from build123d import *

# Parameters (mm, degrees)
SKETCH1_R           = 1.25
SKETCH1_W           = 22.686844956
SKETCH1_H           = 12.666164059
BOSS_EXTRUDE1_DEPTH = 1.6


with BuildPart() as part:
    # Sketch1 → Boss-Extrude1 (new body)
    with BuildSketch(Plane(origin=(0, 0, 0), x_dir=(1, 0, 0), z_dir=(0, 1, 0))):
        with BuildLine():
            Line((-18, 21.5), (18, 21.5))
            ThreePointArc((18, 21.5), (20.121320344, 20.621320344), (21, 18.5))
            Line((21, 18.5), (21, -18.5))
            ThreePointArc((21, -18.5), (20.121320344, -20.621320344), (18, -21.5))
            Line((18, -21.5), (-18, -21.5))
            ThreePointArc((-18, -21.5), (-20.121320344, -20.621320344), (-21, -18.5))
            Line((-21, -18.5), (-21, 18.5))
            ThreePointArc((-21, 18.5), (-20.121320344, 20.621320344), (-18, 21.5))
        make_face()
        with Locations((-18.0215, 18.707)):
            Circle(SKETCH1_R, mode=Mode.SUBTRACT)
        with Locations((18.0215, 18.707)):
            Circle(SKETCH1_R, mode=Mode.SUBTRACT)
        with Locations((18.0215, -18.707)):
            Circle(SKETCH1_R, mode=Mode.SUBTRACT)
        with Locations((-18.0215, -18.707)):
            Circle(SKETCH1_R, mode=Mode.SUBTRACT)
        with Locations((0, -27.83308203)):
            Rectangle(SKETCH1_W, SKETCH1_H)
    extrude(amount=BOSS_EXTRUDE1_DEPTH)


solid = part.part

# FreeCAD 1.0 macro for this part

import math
import FreeCAD as App
import Part
import Sketcher

doc = App.newDocument("Part")
body = doc.addObject("PartDesign::Body", "Body")

# Sketch on XZ plane
sketch1 = doc.addObject("Sketcher::SketchObject", "Sketch")
body.addObject(sketch1)
sketch1.AttachmentSupport = (doc.XZ_Plane, [""])
sketch1.MapMode = "FlatFace"
sketch1.addGeometry([
    Part.LineSegment(App.Vector(18, -21.5, 0), App.Vector(-18, -21.5, 0)),  # 0
    Part.ArcOfCircle(Part.Circle(App.Vector(-18, -18.5, 0), App.Vector(0, 0, 1), 3), math.radians(180), math.radians(270)),  # 1
    Part.LineSegment(App.Vector(-21, -18.5, 0), App.Vector(-21, 18.5, 0)),  # 2
    Part.ArcOfCircle(Part.Circle(App.Vector(-18, 18.5, 0), App.Vector(0, 0, 1), 3), math.radians(90), math.radians(180)),  # 3
    Part.LineSegment(App.Vector(-18, 21.5, 0), App.Vector(-11.3, 21.5, 0)),  # 4
    Part.LineSegment(App.Vector(-11.3, 21.5, 0), App.Vector(-11.3, 34.2, 0)),  # 5
    Part.LineSegment(App.Vector(-11.3, 34.2, 0), App.Vector(11.3, 34.2, 0)),  # 6
    Part.LineSegment(App.Vector(11.3, 34.2, 0), App.Vector(11.3, 21.5, 0)),  # 7
    Part.LineSegment(App.Vector(11.3, 21.5, 0), App.Vector(18, 21.5, 0)),  # 8
    Part.ArcOfCircle(Part.Circle(App.Vector(18, 18.5, 0), App.Vector(0, 0, 1), 3), math.radians(0), math.radians(90)),  # 9
    Part.LineSegment(App.Vector(21, 18.5, 0), App.Vector(21, -18.5, 0)),  # 10
    Part.ArcOfCircle(Part.Circle(App.Vector(18, -18.5, 0), App.Vector(0, 0, 1), 3), math.radians(-90), math.radians(0)),  # 11
    Part.Circle(App.Vector(18, 18.7, 0), App.Vector(0, 0, 1), 1.2),  # 12
    Part.Circle(App.Vector(-18, 18.7, 0), App.Vector(0, 0, 1), 1.2),  # 13
    Part.Circle(App.Vector(18, -18.7, 0), App.Vector(0, 0, 1), 1.2),  # 14
    Part.Circle(App.Vector(-18, -18.7, 0), App.Vector(0, 0, 1), 1.2),  # 15
], False)
sketch1.addConstraint([
    Sketcher.Constraint("Tangent", 0, 2, 1, 2),
    Sketcher.Constraint("Tangent", 1, 1, 2, 1),
    Sketcher.Constraint("Tangent", 2, 2, 3, 2),
    Sketcher.Constraint("Tangent", 3, 1, 4, 1),
    Sketcher.Constraint("Coincident", 4, 2, 5, 1),
    Sketcher.Constraint("Coincident", 5, 2, 6, 1),
    Sketcher.Constraint("Coincident", 6, 2, 7, 1),
    Sketcher.Constraint("Coincident", 7, 2, 8, 1),
    Sketcher.Constraint("Tangent", 8, 2, 9, 2),
    Sketcher.Constraint("Tangent", 9, 1, 10, 1),
    Sketcher.Constraint("Tangent", 10, 2, 11, 2),
    Sketcher.Constraint("Tangent", 11, 1, 0, 1),
    Sketcher.Constraint("Horizontal", 0),
    Sketcher.Constraint("Vertical", 2),
    Sketcher.Constraint("Horizontal", 4),
    Sketcher.Constraint("Vertical", 5),
    Sketcher.Constraint("Horizontal", 6),
    Sketcher.Constraint("Vertical", 7),
    Sketcher.Constraint("Horizontal", 8),
    Sketcher.Constraint("Vertical", 10),
    Sketcher.Constraint("Equal", 1, 3),
    Sketcher.Constraint("Equal", 3, 9),
    Sketcher.Constraint("Equal", 9, 11),
    Sketcher.Constraint("Equal", 12, 13),
    Sketcher.Constraint("Equal", 13, 14),
    Sketcher.Constraint("Equal", 14, 15),
    Sketcher.Constraint("Symmetric", 1, 3, 9, 3, -1, 1),
    Sketcher.Constraint("Symmetric", 13, 3, 14, 3, -1, 1),
    Sketcher.Constraint("Symmetric", 12, 3, 15, 3, -1, 1),
    Sketcher.Constraint("Symmetric", 12, 3, 13, 3, -2),
    Sketcher.Constraint("Symmetric", 4, 2, 7, 2, -2),
    Sketcher.Constraint("Radius", 1, 3.0),
    Sketcher.Constraint("Diameter", 12, 2.5),
    Sketcher.Constraint("DistanceX", 0, 2, 0, 1, 36.0),
    Sketcher.Constraint("DistanceY", 2, 1, 2, 2, 37.0),
    Sketcher.Constraint("DistanceY", -1, 1, 12, 3, 18.707),
    Sketcher.Constraint("DistanceX", 13, 3, 12, 3, 36.043),
    Sketcher.Constraint("DistanceX", 4, 1, 4, 2, 6.656578),
    Sketcher.Constraint("DistanceY", 5, 1, 5, 2, 12.666164),
])
pad1 = doc.addObject("PartDesign::Pad", "Pad")
body.addObject(pad1)
pad1.Profile = sketch1
pad1.Length = 1.6
pad1.Reversed = True

doc.recompute()
